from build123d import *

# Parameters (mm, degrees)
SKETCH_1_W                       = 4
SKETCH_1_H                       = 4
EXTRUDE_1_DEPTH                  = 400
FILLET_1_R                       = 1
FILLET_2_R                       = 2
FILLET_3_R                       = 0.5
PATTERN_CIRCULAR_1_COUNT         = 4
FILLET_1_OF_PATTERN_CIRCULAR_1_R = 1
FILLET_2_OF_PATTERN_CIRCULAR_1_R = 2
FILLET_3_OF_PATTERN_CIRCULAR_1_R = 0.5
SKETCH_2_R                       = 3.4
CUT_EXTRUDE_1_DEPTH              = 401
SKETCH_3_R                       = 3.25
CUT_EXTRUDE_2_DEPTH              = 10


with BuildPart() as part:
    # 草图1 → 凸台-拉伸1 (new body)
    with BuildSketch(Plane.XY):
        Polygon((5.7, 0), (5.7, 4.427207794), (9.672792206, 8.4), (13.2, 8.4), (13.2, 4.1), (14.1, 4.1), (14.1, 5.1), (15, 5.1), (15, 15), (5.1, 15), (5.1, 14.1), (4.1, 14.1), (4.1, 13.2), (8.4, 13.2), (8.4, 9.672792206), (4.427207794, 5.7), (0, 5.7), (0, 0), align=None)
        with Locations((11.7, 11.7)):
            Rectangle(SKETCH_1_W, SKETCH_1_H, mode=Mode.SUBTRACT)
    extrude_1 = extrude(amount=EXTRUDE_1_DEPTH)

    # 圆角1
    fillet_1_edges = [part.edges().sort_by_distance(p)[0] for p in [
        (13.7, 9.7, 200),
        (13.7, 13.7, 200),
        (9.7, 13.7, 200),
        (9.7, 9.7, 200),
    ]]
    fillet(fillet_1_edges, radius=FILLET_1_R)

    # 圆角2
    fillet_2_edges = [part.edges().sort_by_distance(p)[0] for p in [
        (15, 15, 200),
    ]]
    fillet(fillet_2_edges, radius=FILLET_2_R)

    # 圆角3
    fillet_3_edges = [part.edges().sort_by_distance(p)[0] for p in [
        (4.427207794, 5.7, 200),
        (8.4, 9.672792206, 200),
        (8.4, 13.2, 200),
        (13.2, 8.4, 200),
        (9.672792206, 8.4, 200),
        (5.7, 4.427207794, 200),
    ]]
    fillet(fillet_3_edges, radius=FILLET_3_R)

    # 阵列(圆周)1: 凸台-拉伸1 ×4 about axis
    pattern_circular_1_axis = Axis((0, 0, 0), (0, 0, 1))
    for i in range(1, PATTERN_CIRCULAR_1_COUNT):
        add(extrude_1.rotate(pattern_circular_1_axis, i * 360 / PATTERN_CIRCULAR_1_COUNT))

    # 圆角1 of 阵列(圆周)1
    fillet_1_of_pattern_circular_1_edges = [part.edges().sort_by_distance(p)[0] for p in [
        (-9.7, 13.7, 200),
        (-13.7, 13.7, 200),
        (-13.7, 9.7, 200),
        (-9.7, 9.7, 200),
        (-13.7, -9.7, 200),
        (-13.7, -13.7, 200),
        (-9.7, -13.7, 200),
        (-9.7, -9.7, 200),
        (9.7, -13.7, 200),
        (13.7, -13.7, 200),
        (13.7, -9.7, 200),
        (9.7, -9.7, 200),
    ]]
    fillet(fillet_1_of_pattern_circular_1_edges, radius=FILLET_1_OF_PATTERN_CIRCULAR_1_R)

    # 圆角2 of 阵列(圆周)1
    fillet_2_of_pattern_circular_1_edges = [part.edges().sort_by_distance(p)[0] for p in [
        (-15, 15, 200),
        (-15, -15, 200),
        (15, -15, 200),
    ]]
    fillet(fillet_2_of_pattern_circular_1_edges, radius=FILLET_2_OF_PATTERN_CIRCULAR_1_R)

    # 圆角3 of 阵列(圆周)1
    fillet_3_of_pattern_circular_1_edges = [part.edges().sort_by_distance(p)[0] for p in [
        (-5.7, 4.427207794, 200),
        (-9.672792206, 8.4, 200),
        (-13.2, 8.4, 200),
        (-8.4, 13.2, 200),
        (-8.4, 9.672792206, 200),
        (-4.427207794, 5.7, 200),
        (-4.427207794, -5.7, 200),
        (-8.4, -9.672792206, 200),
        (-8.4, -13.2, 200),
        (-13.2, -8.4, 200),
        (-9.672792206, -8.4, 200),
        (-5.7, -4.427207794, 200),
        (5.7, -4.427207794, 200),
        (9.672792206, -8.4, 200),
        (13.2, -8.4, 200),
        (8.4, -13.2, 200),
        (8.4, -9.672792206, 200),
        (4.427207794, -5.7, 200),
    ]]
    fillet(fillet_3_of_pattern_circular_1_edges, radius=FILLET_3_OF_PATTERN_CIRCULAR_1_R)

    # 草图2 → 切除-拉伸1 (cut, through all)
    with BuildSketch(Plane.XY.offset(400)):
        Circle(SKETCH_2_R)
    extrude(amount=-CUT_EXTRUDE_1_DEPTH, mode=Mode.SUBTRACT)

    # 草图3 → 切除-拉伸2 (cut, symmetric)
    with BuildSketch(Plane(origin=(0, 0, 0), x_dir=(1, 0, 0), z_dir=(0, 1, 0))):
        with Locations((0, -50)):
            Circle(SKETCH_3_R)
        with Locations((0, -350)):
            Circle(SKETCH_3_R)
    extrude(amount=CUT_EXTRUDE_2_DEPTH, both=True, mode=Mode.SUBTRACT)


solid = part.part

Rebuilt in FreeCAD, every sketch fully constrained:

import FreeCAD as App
import Part
import Sketcher
Q = App.Units.Quantity


def edges_at(feature, points):
    """Names of the edges that pass closest to the given points."""
    edges = feature.Shape.Edges
    near = lambda p: min(range(len(edges)), key=lambda i: edges[i].distToShape(Part.Vertex(*p))[0])
    return sorted({f"Edge{near(p) + 1}" for p in points})


def add_polygon(sketch, points):
    """Adds a closed chain of lines whose ends are joined by coincident constraints."""
    first, n = sketch.GeometryCount, len(points)
    for a, b in zip(points, points[1:] + points[:1]):
        sketch.addGeometry(Part.LineSegment(App.Vector(*a, 0), App.Vector(*b, 0)), False)
    for i in range(n):
        sketch.addConstraint(Sketcher.Constraint("Coincident", first + i, 2, first + (i + 1) % n, 1))

doc = App.newDocument("Part")
body = doc.addObject("PartDesign::Body", "Body")

# Sketch on XY plane
sketch1 = body.newObject("Sketcher::SketchObject", "Sketch")
sketch1.AttachmentSupport = (doc.getObject("XY_Plane"), [""])
sketch1.MapMode = "FlatFace"
add_polygon(sketch1, [(5.7, 0), (5.7, 4.427208), (9.672792, 8.4), (13.2, 8.4), (13.2, 4.1), (14.1, 4.1), (14.1, 5.1), (15, 5.1), (15, 15), (5.1, 15), (5.1, 14.1), (4.1, 14.1), (4.1, 13.2), (8.4, 13.2), (8.4, 9.672792), (4.427208, 5.7), (0, 5.7), (0, 0)])  # lines 0-17
add_polygon(sketch1, [(13.7, 9.7), (9.7, 9.7), (9.7, 13.7), (13.7, 13.7)])  # lines 18-21
sketch1.addConstraint(Sketcher.Constraint("Vertical", 0))
sketch1.addConstraint(Sketcher.Constraint("Horizontal", 2))
sketch1.addConstraint(Sketcher.Constraint("Vertical", 3))
sketch1.addConstraint(Sketcher.Constraint("Horizontal", 4))
sketch1.addConstraint(Sketcher.Constraint("Vertical", 5))
sketch1.addConstraint(Sketcher.Constraint("Horizontal", 6))
sketch1.addConstraint(Sketcher.Constraint("Vertical", 7))
sketch1.addConstraint(Sketcher.Constraint("Horizontal", 8))
sketch1.addConstraint(Sketcher.Constraint("Vertical", 9))
sketch1.addConstraint(Sketcher.Constraint("Horizontal", 10))
sketch1.addConstraint(Sketcher.Constraint("Vertical", 11))
sketch1.addConstraint(Sketcher.Constraint("Horizontal", 12))
sketch1.addConstraint(Sketcher.Constraint("Vertical", 13))
sketch1.addConstraint(Sketcher.Constraint("Horizontal", 15))
sketch1.addConstraint(Sketcher.Constraint("Vertical", 16))
sketch1.addConstraint(Sketcher.Constraint("Horizontal", 17))
sketch1.addConstraint(Sketcher.Constraint("Horizontal", 18))
sketch1.addConstraint(Sketcher.Constraint("Vertical", 19))
sketch1.addConstraint(Sketcher.Constraint("Horizontal", 20))
sketch1.addConstraint(Sketcher.Constraint("Vertical", 21))
sketch1.addConstraint(Sketcher.Constraint("Coincident", 16, 2, -1, 1))
sketch1.addConstraint(Sketcher.Constraint("Parallel", 1, 14))
sketch1.addConstraint(Sketcher.Constraint("Equal", 4, 6))
sketch1.addConstraint(Sketcher.Constraint("Equal", 15, 0))
sketch1.addConstraint(Sketcher.Constraint("Equal", 12, 3))
sketch1.addConstraint(Sketcher.Constraint("Equal", 10, 5))
sketch1.addConstraint(Sketcher.Constraint("Equal", 8, 7))
sketch1.addConstraint(Sketcher.Constraint("Equal", 6, 9))
sketch1.addConstraint(Sketcher.Constraint("Equal", 9, 11))
sketch1.addConstraint(Sketcher.Constraint("Equal", 2, 13))
sketch1.addConstraint(Sketcher.Constraint("Equal", 17, 16))
sketch1.addConstraint(Sketcher.Constraint("Equal", 20, 19))
sketch1.addConstraint(Sketcher.Constraint("DistanceX", 10, 2, 10, 1, 1.0))
sketch1.addConstraint(Sketcher.Constraint("DistanceX", 18, 2, 18, 1, 4.0))
sketch1.addConstraint(Sketcher.Constraint("Angle", 1, Q("45 deg")))
sketch1.addConstraint(Sketcher.Constraint("DistanceX", 4, 1, 4, 2, 0.9))
sketch1.addConstraint(Sketcher.Constraint("DistanceX", 8, 2, 8, 1, 9.9))
sketch1.addConstraint(Sketcher.Constraint("DistanceX", 12, 1, 12, 2, 4.3))
sketch1.addConstraint(Sketcher.Constraint("DistanceX", 17, 1, 17, 2, 5.7))
sketch1.addConstraint(Sketcher.Constraint("DistanceX", -1, 1, 6, 2, 15.0))
sketch1.addConstraint(Sketcher.Constraint("DistanceX", -1, 1, 18, 2, 9.7))
sketch1.addConstraint(Sketcher.Constraint("DistanceY", -1, 1, 18, 2, 9.7))
sketch1.addConstraint(Sketcher.Constraint("DistanceX", 2, 1, 2, 2, 3.527208))
pad1 = body.newObject("PartDesign::Pad", "Pad")
pad1.Profile = sketch1
pad1.Length = 400
doc.recompute()

fillet = body.newObject("PartDesign::Fillet", "Fillet")
fillet.Base = (pad1, edges_at(pad1, [
    (13.7, 9.7, 200),
    (13.7, 13.7, 200),
    (9.7, 13.7, 200),
    (9.7, 9.7, 200),
]))
fillet.Radius = 1
doc.recompute()

fillet2 = body.newObject("PartDesign::Fillet", "Fillet001")
fillet2.Base = (fillet, edges_at(fillet, [(15, 15, 200)]))
fillet2.Radius = 2
doc.recompute()

fillet3 = body.newObject("PartDesign::Fillet", "Fillet002")
fillet3.Base = (fillet2, edges_at(fillet2, [
    (4.427, 5.7, 200),
    (8.4, 9.673, 200),
    (8.4, 13.2, 200),
    (13.2, 8.4, 200),
    (9.673, 8.4, 200),
    (5.7, 4.427, 200),
]))
fillet3.Radius = 0.5
doc.recompute()

polarpattern = body.newObject("PartDesign::PolarPattern", "PolarPattern")
polarpattern.Originals = [pad1]
polarpattern.Axis = (doc.getObject("Z_Axis"), [""])
polarpattern.Angle = 360
polarpattern.Occurrences = 4
body.Tip = polarpattern
doc.recompute()

fillet4 = body.newObject("PartDesign::Fillet", "Fillet003")
fillet4.Base = (polarpattern, edges_at(polarpattern, [
    (-9.7, 13.7, 200),
    (-13.7, 13.7, 200),
    (-13.7, 9.7, 200),
    (-9.7, 9.7, 200),
    (-13.7, -9.7, 200),
    (-13.7, -13.7, 200),
    (-9.7, -13.7, 200),
    (-9.7, -9.7, 200),
    (9.7, -13.7, 200),
    (13.7, -13.7, 200),
    (13.7, -9.7, 200),
    (9.7, -9.7, 200),
]))
fillet4.Radius = 1
doc.recompute()

fillet5 = body.newObject("PartDesign::Fillet", "Fillet004")
fillet5.Base = (fillet4, edges_at(fillet4, [(-15, 15, 200), (-15, -15, 200), (15, -15, 200)]))
fillet5.Radius = 2
doc.recompute()

fillet6 = body.newObject("PartDesign::Fillet", "Fillet005")
fillet6.Base = (fillet5, edges_at(fillet5, [
    (-5.7, 4.427, 200),
    (-9.673, 8.4, 200),
    (-13.2, 8.4, 200),
    (-8.4, 13.2, 200),
    (-8.4, 9.673, 200),
    (-4.427, 5.7, 200),
    (-4.427, -5.7, 200),
    (-8.4, -9.673, 200),
    (-8.4, -13.2, 200),
    (-13.2, -8.4, 200),
    (-9.673, -8.4, 200),
    (-5.7, -4.427, 200),
    (5.7, -4.427, 200),
    (9.673, -8.4, 200),
    (13.2, -8.4, 200),
    (8.4, -13.2, 200),
    (8.4, -9.673, 200),
    (4.427, -5.7, 200),
]))
fillet6.Radius = 0.5

# Sketch on XY plane
sketch2 = body.newObject("Sketcher::SketchObject", "Sketch001")
sketch2.AttachmentSupport = (doc.getObject("XY_Plane"), [""])
sketch2.MapMode = "FlatFace"
sketch2.AttachmentOffset = App.Placement(App.Vector(0, 0, 400), App.Rotation())
sketch2.addGeometry(Part.Circle(App.Vector(0, 0, 0), App.Vector(0, 0, 1), 3.4), False)
sketch2.addConstraint(Sketcher.Constraint("Coincident", 0, 3, -1, 1))
sketch2.addConstraint(Sketcher.Constraint("Diameter", 0, 6.8))
pocket1 = body.newObject("PartDesign::Pocket", "Pocket")
pocket1.Profile = sketch2
pocket1.Type = "ThroughAll"

# Sketch on XZ plane
sketch3 = body.newObject("Sketcher::SketchObject", "Sketch002")
sketch3.AttachmentSupport = (doc.getObject("XZ_Plane"), [""])
sketch3.MapMode = "FlatFace"
sketch3.addGeometry(Part.Circle(App.Vector(0, 50, 0), App.Vector(0, 0, 1), 3.25), False)
sketch3.addGeometry(Part.Circle(App.Vector(0, 350, 0), App.Vector(0, 0, 1), 3.25), False)
sketch3.addConstraint(Sketcher.Constraint("Equal", 0, 1))
sketch3.addConstraint(Sketcher.Constraint("PointOnObject", 0, 3, -2))
sketch3.addConstraint(Sketcher.Constraint("PointOnObject", 1, 3, -2))
sketch3.addConstraint(Sketcher.Constraint("Diameter", 0, 6.5))
sketch3.addConstraint(Sketcher.Constraint("DistanceY", -1, 1, 0, 3, 50.0))
sketch3.addConstraint(Sketcher.Constraint("DistanceY", -1, 1, 1, 3, 350.0))
pocket2 = body.newObject("PartDesign::Pocket", "Pocket001")
pocket2.Profile = sketch3
pocket2.Length = 20
pocket2.Midplane = True

doc.recompute()
